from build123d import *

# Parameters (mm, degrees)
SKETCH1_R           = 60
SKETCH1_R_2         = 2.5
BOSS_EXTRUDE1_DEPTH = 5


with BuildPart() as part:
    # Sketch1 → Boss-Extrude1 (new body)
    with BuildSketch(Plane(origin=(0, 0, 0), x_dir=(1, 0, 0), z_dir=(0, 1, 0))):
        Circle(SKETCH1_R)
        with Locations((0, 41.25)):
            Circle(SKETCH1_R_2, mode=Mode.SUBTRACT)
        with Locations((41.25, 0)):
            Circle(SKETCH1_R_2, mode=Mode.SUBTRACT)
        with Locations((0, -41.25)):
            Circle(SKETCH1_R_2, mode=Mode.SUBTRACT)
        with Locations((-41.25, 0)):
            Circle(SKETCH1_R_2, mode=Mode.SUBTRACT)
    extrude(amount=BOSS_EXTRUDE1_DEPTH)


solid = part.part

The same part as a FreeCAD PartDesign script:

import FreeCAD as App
import Part
import Sketcher

V = App.Vector
Q = App.Units.Quantity

doc = App.newDocument("Part")
body = doc.addObject("PartDesign::Body", "Body")

# Sketch on XZ plane
sketch1 = doc.addObject("Sketcher::SketchObject", "Sketch")
body.addObject(sketch1)
sketch1.AttachmentSupport = (doc.XZ_Plane, [""])
sketch1.MapMode = "FlatFace"
sketch1.addGeometry(Part.Circle(V(0, 0, 0), V(0, 0, 1), 60), False)
sketch1.addGeometry(Part.Circle(V(0, 41.2, 0), V(0, 0, 1), 2.5), False)
sketch1.addGeometry(Part.Circle(V(-41.2, 0, 0), V(0, 0, 1), 2.5), False)
sketch1.addGeometry(Part.Circle(V(41.2, 0, 0), V(0, 0, 1), 2.5), False)
sketch1.addGeometry(Part.Circle(V(0, -41.2, 0), V(0, 0, 1), 2.5), False)
sketch1.addConstraint(Sketcher.Constraint("Coincident", 0, 3, -1, 1))
sketch1.addConstraint(Sketcher.Constraint("Equal", 1, 2))
sketch1.addConstraint(Sketcher.Constraint("Equal", 2, 3))
sketch1.addConstraint(Sketcher.Constraint("Equal", 3, 4))
sketch1.addConstraint(Sketcher.Constraint("Symmetric", 2, 3, 3, 3, -1, 1))
sketch1.addConstraint(Sketcher.Constraint("Symmetric", 1, 3, 4, 3, -1, 1))
sketch1.addConstraint(Sketcher.Constraint("PointOnObject", 1, 3, -2))
sketch1.addConstraint(Sketcher.Constraint("PointOnObject", 2, 3, -1))
sketch1.addConstraint(Sketcher.Constraint("Diameter", 0, Q("120 mm")))
sketch1.addConstraint(Sketcher.Constraint("Diameter", 1, Q("5 mm")))
sketch1.addConstraint(Sketcher.Constraint("DistanceX", 2, 3, 3, 3, Q("82.5 mm")))
sketch1.addConstraint(Sketcher.Constraint("DistanceY", 4, 3, 1, 3, Q("82.5 mm")))
pad1 = doc.addObject("PartDesign::Pad", "Pad")
body.addObject(pad1)
pad1.Profile = sketch1
pad1.Length = 5
pad1.Reversed = True

doc.recompute()
